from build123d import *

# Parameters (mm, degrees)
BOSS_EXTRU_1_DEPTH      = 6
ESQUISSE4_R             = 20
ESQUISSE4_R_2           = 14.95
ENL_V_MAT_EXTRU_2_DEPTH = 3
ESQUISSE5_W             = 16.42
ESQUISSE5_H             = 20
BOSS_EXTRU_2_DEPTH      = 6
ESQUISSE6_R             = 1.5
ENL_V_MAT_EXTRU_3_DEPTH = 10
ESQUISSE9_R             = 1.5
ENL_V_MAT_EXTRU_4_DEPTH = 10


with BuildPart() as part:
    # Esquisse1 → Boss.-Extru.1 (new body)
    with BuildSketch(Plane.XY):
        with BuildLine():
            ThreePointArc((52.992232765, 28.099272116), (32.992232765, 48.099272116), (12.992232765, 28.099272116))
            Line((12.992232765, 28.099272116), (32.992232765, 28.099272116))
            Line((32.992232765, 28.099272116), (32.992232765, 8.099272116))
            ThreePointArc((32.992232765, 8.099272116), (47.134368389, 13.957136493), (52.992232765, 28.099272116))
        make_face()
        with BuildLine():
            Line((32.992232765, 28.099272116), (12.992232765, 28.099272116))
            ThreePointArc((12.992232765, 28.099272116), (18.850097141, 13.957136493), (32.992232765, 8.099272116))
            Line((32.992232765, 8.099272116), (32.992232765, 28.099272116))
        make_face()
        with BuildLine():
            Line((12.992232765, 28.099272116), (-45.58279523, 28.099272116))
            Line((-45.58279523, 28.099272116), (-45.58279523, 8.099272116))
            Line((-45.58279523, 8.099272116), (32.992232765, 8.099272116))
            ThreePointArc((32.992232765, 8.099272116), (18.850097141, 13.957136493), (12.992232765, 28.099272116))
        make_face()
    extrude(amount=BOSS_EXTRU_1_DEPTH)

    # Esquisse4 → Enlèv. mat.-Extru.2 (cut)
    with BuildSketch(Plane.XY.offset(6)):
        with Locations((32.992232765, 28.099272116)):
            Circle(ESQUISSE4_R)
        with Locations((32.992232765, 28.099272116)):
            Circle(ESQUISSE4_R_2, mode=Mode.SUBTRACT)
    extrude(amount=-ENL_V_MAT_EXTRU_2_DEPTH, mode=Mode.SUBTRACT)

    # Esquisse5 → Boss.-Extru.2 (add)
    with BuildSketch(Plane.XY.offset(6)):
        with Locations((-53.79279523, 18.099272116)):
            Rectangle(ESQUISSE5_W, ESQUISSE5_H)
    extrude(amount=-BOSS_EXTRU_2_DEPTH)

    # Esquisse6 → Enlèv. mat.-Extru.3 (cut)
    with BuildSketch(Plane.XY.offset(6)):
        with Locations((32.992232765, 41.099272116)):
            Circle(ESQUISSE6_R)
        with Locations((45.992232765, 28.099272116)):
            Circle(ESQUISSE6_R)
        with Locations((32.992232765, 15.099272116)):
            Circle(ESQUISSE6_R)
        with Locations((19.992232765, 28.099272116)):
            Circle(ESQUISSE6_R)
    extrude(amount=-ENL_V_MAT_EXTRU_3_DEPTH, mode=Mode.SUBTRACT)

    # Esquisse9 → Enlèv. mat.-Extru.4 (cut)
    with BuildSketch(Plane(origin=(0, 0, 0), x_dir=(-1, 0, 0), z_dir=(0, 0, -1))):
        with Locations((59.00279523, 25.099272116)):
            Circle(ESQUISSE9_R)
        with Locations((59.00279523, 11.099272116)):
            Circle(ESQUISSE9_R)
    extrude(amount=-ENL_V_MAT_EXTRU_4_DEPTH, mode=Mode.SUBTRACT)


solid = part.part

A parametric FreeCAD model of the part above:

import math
import FreeCAD as App
import Part
import Sketcher

V = App.Vector


def add_polygon(sketch, points):
    """Adds a closed chain of lines whose ends are joined by coincident constraints."""
    first, n = sketch.GeometryCount, len(points)
    for a, b in zip(points, points[1:] + points[:1]):
        sketch.addGeometry(Part.LineSegment(App.Vector(*a, 0), App.Vector(*b, 0)), False)
    for i in range(n):
        sketch.addConstraint(Sketcher.Constraint("Coincident", first + i, 2, first + (i + 1) % n, 1))

doc = App.newDocument("Part")
body = doc.addObject("PartDesign::Body", "Body")

sketch1 = body.newObject("Sketcher::SketchObject", "Sketch")
sketch1.AttachmentSupport = (doc.getObject("XY_Plane"), [""])
sketch1.MapMode = "FlatFace"
sketch1.addGeometry([
    Part.ArcOfCircle(Part.Circle(V(33, 28, 0), V(0, 0, 1), 20), math.radians(0), math.radians(180)),
    Part.LineSegment(V(13, 28, 0), V(-46, 28, 0)),
    Part.LineSegment(V(-46, 28, 0), V(-46, 8, 0)),
    Part.LineSegment(V(-46, 8, 0), V(33, 8, 0)),
    Part.ArcOfCircle(Part.Circle(V(33, 28, 0), V(0, 0, 1), 20), math.radians(-90), math.radians(0)),
], False)
sketch1.addConstraint([
    Sketcher.Constraint("Coincident", 0, 2, 1, 1),
    Sketcher.Constraint("Coincident", 1, 2, 2, 1),
    Sketcher.Constraint("Coincident", 2, 2, 3, 1),
    Sketcher.Constraint("Tangent", 3, 2, 4, 1),
    Sketcher.Constraint("Tangent", 4, 2, 0, 1),
    Sketcher.Constraint("Horizontal", 1),
    Sketcher.Constraint("Vertical", 2),
    Sketcher.Constraint("Horizontal", 3),
    Sketcher.Constraint("Equal", 0, 4),
    Sketcher.Constraint("Horizontal", 4, 3, 0, 2),
    Sketcher.Constraint("Horizontal", 1, 2, 4, 2),
    Sketcher.Constraint("Radius", 0, 20.0),
    Sketcher.Constraint("DistanceX", 1, 2, 1, 1, 58.575028),
    Sketcher.Constraint("DistanceX", -1, 1, 0, 3, 32.992233),
    Sketcher.Constraint("DistanceY", -1, 1, 0, 3, 28.099272),
])
pad1 = body.newObject("PartDesign::Pad", "Pad")
pad1.Profile = sketch1
pad1.Length = 6

sketch2 = body.newObject("Sketcher::SketchObject", "Sketch001")
sketch2.AttachmentSupport = (doc.getObject("XY_Plane"), [""])
sketch2.MapMode = "FlatFace"
sketch2.AttachmentOffset = App.Placement(V(0, 0, 6), App.Rotation())
sketch2.addGeometry([
    Part.Circle(V(33, 28, 0), V(0, 0, 1), 20),
    Part.Circle(V(33, 28, 0), V(0, 0, 1), 15),
], False)
sketch2.addConstraint([
    Sketcher.Constraint("Coincident", 1, 3, 0, 3),
    Sketcher.Constraint("Diameter", 0, 40.0),
    Sketcher.Constraint("Diameter", 1, 29.9),
    Sketcher.Constraint("DistanceX", -1, 1, 0, 3, 32.992233),
    Sketcher.Constraint("DistanceY", -1, 1, 0, 3, 28.099272),
])
pocket1 = body.newObject("PartDesign::Pocket", "Pocket")
pocket1.Profile = sketch2
pocket1.Length = 3

sketch3 = body.newObject("Sketcher::SketchObject", "Sketch002")
sketch3.AttachmentSupport = (doc.getObject("XY_Plane"), [""])
sketch3.MapMode = "FlatFace"
sketch3.AttachmentOffset = App.Placement(V(0, 0, 6), App.Rotation())
add_polygon(sketch3, [(-62, 28), (-62, 8), (-46, 8), (-46, 28)])
sketch3.addConstraint([
    Sketcher.Constraint("Vertical", 0),
    Sketcher.Constraint("Horizontal", 1),
    Sketcher.Constraint("Vertical", 2),
    Sketcher.Constraint("Horizontal", 3),
    Sketcher.Constraint("DistanceY", 0, 2, 0, 1, 20.0),
    Sketcher.Constraint("DistanceX", 1, 1, 1, 2, 16.42),
    Sketcher.Constraint("DistanceX", 0, 2, -1, 1, 62.002795),
    Sketcher.Constraint("DistanceY", -1, 1, 0, 2, 8.099272),
])
pad2 = body.newObject("PartDesign::Pad", "Pad001")
pad2.Profile = sketch3
pad2.Length = 6
pad2.Reversed = True

sketch4 = body.newObject("Sketcher::SketchObject", "Sketch003")
sketch4.AttachmentSupport = (doc.getObject("XY_Plane"), [""])
sketch4.MapMode = "FlatFace"
sketch4.AttachmentOffset = App.Placement(V(0, 0, 6), App.Rotation())
sketch4.addGeometry([
    Part.Circle(V(33, 41.1, 0), V(0, 0, 1), 1.5),
    Part.Circle(V(46, 28.1, 0), V(0, 0, 1), 1.5),
    Part.Circle(V(33, 15.1, 0), V(0, 0, 1), 1.5),
    Part.Circle(V(20, 28.1, 0), V(0, 0, 1), 1.5),
], False)
sketch4.addConstraint([
    Sketcher.Constraint("Equal", 0, 1),
    Sketcher.Constraint("Equal", 1, 2),
    Sketcher.Constraint("Equal", 2, 3),
    Sketcher.Constraint("Horizontal", 1, 3, 3, 3),
    Sketcher.Constraint("Vertical", 0, 3, 2, 3),
    Sketcher.Constraint("Diameter", 0, 3.0),
    Sketcher.Constraint("DistanceX", 0, 3, 1, 3, 13.0),
    Sketcher.Constraint("DistanceY", 1, 3, 0, 3, 13.0),
    Sketcher.Constraint("DistanceY", 2, 3, 1, 3, 13.0),
    Sketcher.Constraint("DistanceX", 3, 3, 0, 3, 13.0),
    Sketcher.Constraint("DistanceX", -1, 1, 0, 3, 32.992233),
    Sketcher.Constraint("DistanceY", -1, 1, 0, 3, 41.099272),
])
pocket2 = body.newObject("PartDesign::Pocket", "Pocket001")
pocket2.Profile = sketch4
pocket2.Length = 10

sketch5 = body.newObject("Sketcher::SketchObject", "Sketch004")
sketch5.AttachmentSupport = (doc.getObject("XY_Plane"), [""])
sketch5.MapMode = "FlatFace"
sketch5.addGeometry([
    Part.Circle(V(-59, 25.1, 0), V(0, 0, 1), 1.5),
    Part.Circle(V(-59, 11.1, 0), V(0, 0, 1), 1.5),
], False)
sketch5.addConstraint([
    Sketcher.Constraint("Equal", 0, 1),
    Sketcher.Constraint("Vertical", 0, 3, 1, 3),
    Sketcher.Constraint("Diameter", 0, 3.0),
    Sketcher.Constraint("DistanceY", 1, 3, 0, 3, 14.0),
    Sketcher.Constraint("DistanceX", 0, 3, -1, 1, 59.002795),
    Sketcher.Constraint("DistanceY", -1, 1, 0, 3, 25.099272),
])
pocket3 = body.newObject("PartDesign::Pocket", "Pocket002")
pocket3.Profile = sketch5
pocket3.Length = 10
pocket3.Reversed = True

doc.recompute()
